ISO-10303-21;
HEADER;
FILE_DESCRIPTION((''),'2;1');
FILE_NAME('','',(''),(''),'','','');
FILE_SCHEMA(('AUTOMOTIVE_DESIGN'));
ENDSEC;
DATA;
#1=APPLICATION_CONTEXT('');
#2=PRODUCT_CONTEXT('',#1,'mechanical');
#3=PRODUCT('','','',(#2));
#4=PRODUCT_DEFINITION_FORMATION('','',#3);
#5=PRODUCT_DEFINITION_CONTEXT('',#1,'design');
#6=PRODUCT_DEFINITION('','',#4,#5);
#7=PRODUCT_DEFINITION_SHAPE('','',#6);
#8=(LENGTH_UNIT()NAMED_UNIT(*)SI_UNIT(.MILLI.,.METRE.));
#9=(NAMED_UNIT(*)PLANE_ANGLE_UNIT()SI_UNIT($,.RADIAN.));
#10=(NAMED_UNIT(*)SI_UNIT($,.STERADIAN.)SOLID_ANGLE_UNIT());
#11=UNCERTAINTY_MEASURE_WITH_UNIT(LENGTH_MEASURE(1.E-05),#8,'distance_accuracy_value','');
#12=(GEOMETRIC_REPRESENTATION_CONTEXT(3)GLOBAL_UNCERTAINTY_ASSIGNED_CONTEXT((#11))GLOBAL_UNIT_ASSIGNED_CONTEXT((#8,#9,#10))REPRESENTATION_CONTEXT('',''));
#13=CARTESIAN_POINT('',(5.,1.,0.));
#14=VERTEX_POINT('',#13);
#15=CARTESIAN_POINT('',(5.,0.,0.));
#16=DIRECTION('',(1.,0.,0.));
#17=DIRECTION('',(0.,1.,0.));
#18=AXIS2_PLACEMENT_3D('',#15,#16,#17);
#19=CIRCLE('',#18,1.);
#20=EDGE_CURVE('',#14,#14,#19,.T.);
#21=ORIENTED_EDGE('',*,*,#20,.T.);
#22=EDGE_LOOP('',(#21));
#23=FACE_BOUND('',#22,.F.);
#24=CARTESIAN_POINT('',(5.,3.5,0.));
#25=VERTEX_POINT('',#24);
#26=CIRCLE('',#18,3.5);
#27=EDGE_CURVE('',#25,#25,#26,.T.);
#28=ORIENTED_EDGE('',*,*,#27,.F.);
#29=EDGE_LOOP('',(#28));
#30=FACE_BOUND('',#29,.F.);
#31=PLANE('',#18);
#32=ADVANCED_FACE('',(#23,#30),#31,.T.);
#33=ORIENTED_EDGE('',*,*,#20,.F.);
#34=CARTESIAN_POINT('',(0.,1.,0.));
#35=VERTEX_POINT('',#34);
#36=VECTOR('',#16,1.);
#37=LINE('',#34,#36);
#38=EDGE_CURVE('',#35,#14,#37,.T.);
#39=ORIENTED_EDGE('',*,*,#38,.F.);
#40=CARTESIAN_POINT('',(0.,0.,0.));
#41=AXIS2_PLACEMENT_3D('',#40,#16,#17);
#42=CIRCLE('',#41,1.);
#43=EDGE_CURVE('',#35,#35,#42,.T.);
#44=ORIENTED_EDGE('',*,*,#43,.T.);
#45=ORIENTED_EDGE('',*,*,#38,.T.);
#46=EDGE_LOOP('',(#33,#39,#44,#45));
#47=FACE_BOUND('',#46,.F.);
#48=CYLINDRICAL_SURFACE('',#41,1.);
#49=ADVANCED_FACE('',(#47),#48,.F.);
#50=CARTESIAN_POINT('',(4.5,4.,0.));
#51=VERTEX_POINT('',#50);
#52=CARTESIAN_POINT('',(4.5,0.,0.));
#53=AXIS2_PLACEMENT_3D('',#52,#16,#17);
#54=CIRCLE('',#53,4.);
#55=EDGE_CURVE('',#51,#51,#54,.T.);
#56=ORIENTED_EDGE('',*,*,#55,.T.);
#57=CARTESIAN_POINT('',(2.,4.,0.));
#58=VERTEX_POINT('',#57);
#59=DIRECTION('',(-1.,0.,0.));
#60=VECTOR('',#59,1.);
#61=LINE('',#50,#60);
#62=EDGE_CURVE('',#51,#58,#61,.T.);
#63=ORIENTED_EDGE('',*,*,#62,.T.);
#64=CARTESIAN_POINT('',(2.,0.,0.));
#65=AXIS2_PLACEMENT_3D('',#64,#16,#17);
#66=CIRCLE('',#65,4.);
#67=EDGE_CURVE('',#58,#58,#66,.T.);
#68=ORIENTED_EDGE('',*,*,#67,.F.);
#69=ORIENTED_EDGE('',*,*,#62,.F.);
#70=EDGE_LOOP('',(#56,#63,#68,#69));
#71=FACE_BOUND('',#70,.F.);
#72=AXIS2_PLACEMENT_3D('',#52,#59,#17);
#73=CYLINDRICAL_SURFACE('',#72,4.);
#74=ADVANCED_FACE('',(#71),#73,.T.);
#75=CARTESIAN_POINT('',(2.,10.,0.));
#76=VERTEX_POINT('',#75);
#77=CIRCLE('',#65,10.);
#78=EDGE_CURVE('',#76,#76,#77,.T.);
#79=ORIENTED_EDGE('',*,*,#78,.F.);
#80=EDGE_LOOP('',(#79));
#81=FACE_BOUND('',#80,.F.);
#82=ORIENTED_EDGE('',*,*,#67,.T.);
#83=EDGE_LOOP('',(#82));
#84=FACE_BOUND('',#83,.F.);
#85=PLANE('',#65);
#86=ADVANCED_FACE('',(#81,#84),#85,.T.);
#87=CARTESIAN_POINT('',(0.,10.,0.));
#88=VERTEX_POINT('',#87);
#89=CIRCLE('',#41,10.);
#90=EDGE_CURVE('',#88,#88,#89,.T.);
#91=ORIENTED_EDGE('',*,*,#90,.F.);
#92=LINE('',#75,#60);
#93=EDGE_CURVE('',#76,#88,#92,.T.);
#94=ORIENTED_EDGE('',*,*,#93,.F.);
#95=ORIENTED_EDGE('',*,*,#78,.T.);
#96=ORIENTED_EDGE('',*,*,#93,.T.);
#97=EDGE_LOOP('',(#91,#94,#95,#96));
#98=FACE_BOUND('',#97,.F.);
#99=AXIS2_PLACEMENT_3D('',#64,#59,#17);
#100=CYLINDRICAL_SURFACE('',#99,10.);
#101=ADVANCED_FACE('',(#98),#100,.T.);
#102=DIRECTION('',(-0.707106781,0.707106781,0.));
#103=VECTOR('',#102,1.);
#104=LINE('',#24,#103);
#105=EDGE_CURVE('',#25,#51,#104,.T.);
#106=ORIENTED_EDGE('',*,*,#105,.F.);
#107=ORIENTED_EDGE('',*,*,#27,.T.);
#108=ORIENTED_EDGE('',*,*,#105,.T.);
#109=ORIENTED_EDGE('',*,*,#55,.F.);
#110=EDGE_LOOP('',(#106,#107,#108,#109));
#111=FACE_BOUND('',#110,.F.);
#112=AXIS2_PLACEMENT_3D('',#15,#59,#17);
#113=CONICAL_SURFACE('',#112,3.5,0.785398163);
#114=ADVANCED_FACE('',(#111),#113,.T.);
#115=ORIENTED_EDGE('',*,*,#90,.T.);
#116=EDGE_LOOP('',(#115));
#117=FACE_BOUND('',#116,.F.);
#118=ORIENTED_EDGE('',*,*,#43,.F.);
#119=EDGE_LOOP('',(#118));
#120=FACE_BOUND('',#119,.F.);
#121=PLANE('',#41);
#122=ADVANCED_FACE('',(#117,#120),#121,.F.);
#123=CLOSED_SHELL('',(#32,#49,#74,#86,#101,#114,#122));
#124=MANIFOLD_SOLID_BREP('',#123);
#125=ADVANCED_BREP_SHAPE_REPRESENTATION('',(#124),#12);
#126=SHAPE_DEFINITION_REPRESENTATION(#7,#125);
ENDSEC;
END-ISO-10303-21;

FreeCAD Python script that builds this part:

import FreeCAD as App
import Part
import Sketcher
from FreeCAD import Vector
Q = App.Units.Quantity


def add_polygon(sketch, points):
    """Adds a closed chain of lines whose ends are joined by coincident constraints."""
    first, n = sketch.GeometryCount, len(points)
    for a, b in zip(points, points[1:] + points[:1]):
        sketch.addGeometry(Part.LineSegment(App.Vector(*a, 0), App.Vector(*b, 0)), False)
    for i in range(n):
        sketch.addConstraint(Sketcher.Constraint("Coincident", first + i, 2, first + (i + 1) % n, 1))

doc = App.newDocument("Part")
params = doc.addObject("Spreadsheet::Sheet", "Params")
for row, (alias, value) in enumerate([
    ("sketch1_width", "5 mm"),
    ("sketch1_width2", "2 mm"),
    ("sketch1_height", "9 mm"),
    ("sketch1_height2", "6 mm"),
    ("sketch1_width3", "2.5 mm"),
    ("revolution_angle", "360 deg"),
], start=1):
    params.set(f"A{row}", alias)
    params.set(f"B{row}", "=" + value)
    params.setAlias(f"B{row}", alias)

body = doc.addObject("PartDesign::Body", "Body")

sketch1 = body.newObject("Sketcher::SketchObject", "Sketch")
sketch1.AttachmentSupport = (doc.getObject("XY_Plane"), [""])
sketch1.MapMode = "FlatFace"
add_polygon(sketch1, [(0, 10), (0, 1), (5, 1), (5, 3.5), (4.5, 4), (2, 4), (2, 10)])
sketch1.addConstraint(Sketcher.Constraint("Vertical", 0))
sketch1.addConstraint(Sketcher.Constraint("Horizontal", 1))
sketch1.addConstraint(Sketcher.Constraint("Vertical", 2))
sketch1.addConstraint(Sketcher.Constraint("Horizontal", 4))
sketch1.addConstraint(Sketcher.Constraint("Vertical", 5))
sketch1.addConstraint(Sketcher.Constraint("Horizontal", 6))
sketch1.addConstraint(Sketcher.Constraint("PointOnObject", 0, 2, -2))
sketch1.addConstraint(Sketcher.Constraint("Equal", 4, 2))
sketch1.addConstraint(Sketcher.Constraint("DistanceX", 1, 1, 1, 2, Q("5 mm")))
sketch1.addConstraint(Sketcher.Constraint("DistanceX", 6, 2, 6, 1, Q("2 mm")))
sketch1.addConstraint(Sketcher.Constraint("DistanceY", 0, 2, 0, 1, Q("9 mm")))
sketch1.addConstraint(Sketcher.Constraint("DistanceY", 5, 1, 5, 2, Q("6 mm")))
sketch1.addConstraint(Sketcher.Constraint("DistanceX", 4, 2, 4, 1, Q("2.5 mm")))
sketch1.addConstraint(Sketcher.Constraint("DistanceY", -1, 1, 0, 2, Q("1 mm")))
sketch1.setExpression("Constraints[15]", "Params.sketch1_width")
sketch1.setExpression("Constraints[16]", "Params.sketch1_width2")
sketch1.setExpression("Constraints[17]", "Params.sketch1_height")
sketch1.setExpression("Constraints[18]", "Params.sketch1_height2")
sketch1.setExpression("Constraints[19]", "Params.sketch1_width3")
revolution = body.newObject("PartDesign::Revolution", "Revolution")
revolution.Profile = sketch1
revolution.ReferenceAxis = (sketch1, ["H_Axis"])
revolution.setExpression("Angle", "Params.revolution_angle")

doc.recompute()
